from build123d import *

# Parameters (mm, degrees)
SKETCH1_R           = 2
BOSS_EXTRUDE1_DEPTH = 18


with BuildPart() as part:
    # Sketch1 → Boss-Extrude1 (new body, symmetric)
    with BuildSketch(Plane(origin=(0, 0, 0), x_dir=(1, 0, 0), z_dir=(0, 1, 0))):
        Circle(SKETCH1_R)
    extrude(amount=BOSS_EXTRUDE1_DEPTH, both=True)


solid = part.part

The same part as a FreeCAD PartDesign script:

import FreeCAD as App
import Part
import Sketcher

V = App.Vector

doc = App.newDocument("Part")
body = doc.addObject("PartDesign::Body", "Body")

# Sketch on XZ plane
sketch1 = doc.addObject("Sketcher::SketchObject", "Sketch")
body.addObject(sketch1)
sketch1.AttachmentSupport = (doc.XZ_Plane, [""])
sketch1.MapMode = "FlatFace"
sketch1.addGeometry(Part.Circle(V(0, 0, 0), V(0, 0, 1), 2), False)
sketch1.addConstraint([
    Sketcher.Constraint("Coincident", 0, 3, -1, 1),
    Sketcher.Constraint("Diameter", 0, 4.0),
])
pad1 = doc.addObject("PartDesign::Pad", "Pad")
body.addObject(pad1)
pad1.Profile = sketch1
pad1.Length = 36
pad1.Midplane = True

doc.recompute()
